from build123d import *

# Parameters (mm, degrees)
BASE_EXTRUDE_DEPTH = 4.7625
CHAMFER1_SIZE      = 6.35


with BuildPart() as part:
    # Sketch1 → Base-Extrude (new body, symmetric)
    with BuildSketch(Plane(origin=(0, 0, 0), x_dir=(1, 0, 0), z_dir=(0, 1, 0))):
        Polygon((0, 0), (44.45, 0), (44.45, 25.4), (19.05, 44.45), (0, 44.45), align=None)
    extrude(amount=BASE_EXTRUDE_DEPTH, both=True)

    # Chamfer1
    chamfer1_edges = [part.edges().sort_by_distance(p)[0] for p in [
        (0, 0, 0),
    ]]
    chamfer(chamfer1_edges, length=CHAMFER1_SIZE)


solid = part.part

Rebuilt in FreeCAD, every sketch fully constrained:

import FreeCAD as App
import Part
import Sketcher
from FreeCAD import Vector
Q = App.Units.Quantity


def edges_at(feature, points):
    """Names of the edges that pass closest to the given points."""
    edges = feature.Shape.Edges
    near = lambda p: min(range(len(edges)), key=lambda i: edges[i].distToShape(Part.Vertex(*p))[0])
    return sorted({f"Edge{near(p) + 1}" for p in points})


def add_polygon(sketch, points):
    """Adds a closed chain of lines whose ends are joined by coincident constraints."""
    first, n = sketch.GeometryCount, len(points)
    for a, b in zip(points, points[1:] + points[:1]):
        sketch.addGeometry(Part.LineSegment(App.Vector(*a, 0), App.Vector(*b, 0)), False)
    for i in range(n):
        sketch.addConstraint(Sketcher.Constraint("Coincident", first + i, 2, first + (i + 1) % n, 1))

doc = App.newDocument("Part")
body = doc.addObject("PartDesign::Body", "Body")

# Sketch on XZ plane
sketch1 = body.newObject("Sketcher::SketchObject", "Sketch")
sketch1.AttachmentSupport = (doc.getObject("XZ_Plane"), [""])
sketch1.MapMode = "FlatFace"
add_polygon(sketch1, [(0, 0), (44, 0), (44, -25), (19, -44), (0, -44)])  # lines 0-4
sketch1.addConstraint(Sketcher.Constraint("Horizontal", 0))
sketch1.addConstraint(Sketcher.Constraint("Vertical", 1))
sketch1.addConstraint(Sketcher.Constraint("Horizontal", 3))
sketch1.addConstraint(Sketcher.Constraint("Vertical", 4))
sketch1.addConstraint(Sketcher.Constraint("Coincident", 4, 2, -1, 1))
sketch1.addConstraint(Sketcher.Constraint("Equal", 0, 4))
sketch1.addConstraint(Sketcher.Constraint("DistanceY", 1, 2, 1, 1, Q("1 in")))
sketch1.addConstraint(Sketcher.Constraint("DistanceX", 2, 2, 1, 2, Q("1 in")))
sketch1.addConstraint(Sketcher.Constraint("DistanceX", 0, 1, 0, 2, Q("1.75 in")))
pad1 = body.newObject("PartDesign::Pad", "Pad")
pad1.Profile = sketch1
pad1.Length = Q("0.375 in")
pad1.Midplane = True
doc.recompute()

chamfer = body.newObject("PartDesign::Chamfer", "Chamfer")
chamfer.Base = (pad1, edges_at(pad1, [(0, 0, 0)]))
chamfer.Size = Q("0.25 in")

doc.recompute()
